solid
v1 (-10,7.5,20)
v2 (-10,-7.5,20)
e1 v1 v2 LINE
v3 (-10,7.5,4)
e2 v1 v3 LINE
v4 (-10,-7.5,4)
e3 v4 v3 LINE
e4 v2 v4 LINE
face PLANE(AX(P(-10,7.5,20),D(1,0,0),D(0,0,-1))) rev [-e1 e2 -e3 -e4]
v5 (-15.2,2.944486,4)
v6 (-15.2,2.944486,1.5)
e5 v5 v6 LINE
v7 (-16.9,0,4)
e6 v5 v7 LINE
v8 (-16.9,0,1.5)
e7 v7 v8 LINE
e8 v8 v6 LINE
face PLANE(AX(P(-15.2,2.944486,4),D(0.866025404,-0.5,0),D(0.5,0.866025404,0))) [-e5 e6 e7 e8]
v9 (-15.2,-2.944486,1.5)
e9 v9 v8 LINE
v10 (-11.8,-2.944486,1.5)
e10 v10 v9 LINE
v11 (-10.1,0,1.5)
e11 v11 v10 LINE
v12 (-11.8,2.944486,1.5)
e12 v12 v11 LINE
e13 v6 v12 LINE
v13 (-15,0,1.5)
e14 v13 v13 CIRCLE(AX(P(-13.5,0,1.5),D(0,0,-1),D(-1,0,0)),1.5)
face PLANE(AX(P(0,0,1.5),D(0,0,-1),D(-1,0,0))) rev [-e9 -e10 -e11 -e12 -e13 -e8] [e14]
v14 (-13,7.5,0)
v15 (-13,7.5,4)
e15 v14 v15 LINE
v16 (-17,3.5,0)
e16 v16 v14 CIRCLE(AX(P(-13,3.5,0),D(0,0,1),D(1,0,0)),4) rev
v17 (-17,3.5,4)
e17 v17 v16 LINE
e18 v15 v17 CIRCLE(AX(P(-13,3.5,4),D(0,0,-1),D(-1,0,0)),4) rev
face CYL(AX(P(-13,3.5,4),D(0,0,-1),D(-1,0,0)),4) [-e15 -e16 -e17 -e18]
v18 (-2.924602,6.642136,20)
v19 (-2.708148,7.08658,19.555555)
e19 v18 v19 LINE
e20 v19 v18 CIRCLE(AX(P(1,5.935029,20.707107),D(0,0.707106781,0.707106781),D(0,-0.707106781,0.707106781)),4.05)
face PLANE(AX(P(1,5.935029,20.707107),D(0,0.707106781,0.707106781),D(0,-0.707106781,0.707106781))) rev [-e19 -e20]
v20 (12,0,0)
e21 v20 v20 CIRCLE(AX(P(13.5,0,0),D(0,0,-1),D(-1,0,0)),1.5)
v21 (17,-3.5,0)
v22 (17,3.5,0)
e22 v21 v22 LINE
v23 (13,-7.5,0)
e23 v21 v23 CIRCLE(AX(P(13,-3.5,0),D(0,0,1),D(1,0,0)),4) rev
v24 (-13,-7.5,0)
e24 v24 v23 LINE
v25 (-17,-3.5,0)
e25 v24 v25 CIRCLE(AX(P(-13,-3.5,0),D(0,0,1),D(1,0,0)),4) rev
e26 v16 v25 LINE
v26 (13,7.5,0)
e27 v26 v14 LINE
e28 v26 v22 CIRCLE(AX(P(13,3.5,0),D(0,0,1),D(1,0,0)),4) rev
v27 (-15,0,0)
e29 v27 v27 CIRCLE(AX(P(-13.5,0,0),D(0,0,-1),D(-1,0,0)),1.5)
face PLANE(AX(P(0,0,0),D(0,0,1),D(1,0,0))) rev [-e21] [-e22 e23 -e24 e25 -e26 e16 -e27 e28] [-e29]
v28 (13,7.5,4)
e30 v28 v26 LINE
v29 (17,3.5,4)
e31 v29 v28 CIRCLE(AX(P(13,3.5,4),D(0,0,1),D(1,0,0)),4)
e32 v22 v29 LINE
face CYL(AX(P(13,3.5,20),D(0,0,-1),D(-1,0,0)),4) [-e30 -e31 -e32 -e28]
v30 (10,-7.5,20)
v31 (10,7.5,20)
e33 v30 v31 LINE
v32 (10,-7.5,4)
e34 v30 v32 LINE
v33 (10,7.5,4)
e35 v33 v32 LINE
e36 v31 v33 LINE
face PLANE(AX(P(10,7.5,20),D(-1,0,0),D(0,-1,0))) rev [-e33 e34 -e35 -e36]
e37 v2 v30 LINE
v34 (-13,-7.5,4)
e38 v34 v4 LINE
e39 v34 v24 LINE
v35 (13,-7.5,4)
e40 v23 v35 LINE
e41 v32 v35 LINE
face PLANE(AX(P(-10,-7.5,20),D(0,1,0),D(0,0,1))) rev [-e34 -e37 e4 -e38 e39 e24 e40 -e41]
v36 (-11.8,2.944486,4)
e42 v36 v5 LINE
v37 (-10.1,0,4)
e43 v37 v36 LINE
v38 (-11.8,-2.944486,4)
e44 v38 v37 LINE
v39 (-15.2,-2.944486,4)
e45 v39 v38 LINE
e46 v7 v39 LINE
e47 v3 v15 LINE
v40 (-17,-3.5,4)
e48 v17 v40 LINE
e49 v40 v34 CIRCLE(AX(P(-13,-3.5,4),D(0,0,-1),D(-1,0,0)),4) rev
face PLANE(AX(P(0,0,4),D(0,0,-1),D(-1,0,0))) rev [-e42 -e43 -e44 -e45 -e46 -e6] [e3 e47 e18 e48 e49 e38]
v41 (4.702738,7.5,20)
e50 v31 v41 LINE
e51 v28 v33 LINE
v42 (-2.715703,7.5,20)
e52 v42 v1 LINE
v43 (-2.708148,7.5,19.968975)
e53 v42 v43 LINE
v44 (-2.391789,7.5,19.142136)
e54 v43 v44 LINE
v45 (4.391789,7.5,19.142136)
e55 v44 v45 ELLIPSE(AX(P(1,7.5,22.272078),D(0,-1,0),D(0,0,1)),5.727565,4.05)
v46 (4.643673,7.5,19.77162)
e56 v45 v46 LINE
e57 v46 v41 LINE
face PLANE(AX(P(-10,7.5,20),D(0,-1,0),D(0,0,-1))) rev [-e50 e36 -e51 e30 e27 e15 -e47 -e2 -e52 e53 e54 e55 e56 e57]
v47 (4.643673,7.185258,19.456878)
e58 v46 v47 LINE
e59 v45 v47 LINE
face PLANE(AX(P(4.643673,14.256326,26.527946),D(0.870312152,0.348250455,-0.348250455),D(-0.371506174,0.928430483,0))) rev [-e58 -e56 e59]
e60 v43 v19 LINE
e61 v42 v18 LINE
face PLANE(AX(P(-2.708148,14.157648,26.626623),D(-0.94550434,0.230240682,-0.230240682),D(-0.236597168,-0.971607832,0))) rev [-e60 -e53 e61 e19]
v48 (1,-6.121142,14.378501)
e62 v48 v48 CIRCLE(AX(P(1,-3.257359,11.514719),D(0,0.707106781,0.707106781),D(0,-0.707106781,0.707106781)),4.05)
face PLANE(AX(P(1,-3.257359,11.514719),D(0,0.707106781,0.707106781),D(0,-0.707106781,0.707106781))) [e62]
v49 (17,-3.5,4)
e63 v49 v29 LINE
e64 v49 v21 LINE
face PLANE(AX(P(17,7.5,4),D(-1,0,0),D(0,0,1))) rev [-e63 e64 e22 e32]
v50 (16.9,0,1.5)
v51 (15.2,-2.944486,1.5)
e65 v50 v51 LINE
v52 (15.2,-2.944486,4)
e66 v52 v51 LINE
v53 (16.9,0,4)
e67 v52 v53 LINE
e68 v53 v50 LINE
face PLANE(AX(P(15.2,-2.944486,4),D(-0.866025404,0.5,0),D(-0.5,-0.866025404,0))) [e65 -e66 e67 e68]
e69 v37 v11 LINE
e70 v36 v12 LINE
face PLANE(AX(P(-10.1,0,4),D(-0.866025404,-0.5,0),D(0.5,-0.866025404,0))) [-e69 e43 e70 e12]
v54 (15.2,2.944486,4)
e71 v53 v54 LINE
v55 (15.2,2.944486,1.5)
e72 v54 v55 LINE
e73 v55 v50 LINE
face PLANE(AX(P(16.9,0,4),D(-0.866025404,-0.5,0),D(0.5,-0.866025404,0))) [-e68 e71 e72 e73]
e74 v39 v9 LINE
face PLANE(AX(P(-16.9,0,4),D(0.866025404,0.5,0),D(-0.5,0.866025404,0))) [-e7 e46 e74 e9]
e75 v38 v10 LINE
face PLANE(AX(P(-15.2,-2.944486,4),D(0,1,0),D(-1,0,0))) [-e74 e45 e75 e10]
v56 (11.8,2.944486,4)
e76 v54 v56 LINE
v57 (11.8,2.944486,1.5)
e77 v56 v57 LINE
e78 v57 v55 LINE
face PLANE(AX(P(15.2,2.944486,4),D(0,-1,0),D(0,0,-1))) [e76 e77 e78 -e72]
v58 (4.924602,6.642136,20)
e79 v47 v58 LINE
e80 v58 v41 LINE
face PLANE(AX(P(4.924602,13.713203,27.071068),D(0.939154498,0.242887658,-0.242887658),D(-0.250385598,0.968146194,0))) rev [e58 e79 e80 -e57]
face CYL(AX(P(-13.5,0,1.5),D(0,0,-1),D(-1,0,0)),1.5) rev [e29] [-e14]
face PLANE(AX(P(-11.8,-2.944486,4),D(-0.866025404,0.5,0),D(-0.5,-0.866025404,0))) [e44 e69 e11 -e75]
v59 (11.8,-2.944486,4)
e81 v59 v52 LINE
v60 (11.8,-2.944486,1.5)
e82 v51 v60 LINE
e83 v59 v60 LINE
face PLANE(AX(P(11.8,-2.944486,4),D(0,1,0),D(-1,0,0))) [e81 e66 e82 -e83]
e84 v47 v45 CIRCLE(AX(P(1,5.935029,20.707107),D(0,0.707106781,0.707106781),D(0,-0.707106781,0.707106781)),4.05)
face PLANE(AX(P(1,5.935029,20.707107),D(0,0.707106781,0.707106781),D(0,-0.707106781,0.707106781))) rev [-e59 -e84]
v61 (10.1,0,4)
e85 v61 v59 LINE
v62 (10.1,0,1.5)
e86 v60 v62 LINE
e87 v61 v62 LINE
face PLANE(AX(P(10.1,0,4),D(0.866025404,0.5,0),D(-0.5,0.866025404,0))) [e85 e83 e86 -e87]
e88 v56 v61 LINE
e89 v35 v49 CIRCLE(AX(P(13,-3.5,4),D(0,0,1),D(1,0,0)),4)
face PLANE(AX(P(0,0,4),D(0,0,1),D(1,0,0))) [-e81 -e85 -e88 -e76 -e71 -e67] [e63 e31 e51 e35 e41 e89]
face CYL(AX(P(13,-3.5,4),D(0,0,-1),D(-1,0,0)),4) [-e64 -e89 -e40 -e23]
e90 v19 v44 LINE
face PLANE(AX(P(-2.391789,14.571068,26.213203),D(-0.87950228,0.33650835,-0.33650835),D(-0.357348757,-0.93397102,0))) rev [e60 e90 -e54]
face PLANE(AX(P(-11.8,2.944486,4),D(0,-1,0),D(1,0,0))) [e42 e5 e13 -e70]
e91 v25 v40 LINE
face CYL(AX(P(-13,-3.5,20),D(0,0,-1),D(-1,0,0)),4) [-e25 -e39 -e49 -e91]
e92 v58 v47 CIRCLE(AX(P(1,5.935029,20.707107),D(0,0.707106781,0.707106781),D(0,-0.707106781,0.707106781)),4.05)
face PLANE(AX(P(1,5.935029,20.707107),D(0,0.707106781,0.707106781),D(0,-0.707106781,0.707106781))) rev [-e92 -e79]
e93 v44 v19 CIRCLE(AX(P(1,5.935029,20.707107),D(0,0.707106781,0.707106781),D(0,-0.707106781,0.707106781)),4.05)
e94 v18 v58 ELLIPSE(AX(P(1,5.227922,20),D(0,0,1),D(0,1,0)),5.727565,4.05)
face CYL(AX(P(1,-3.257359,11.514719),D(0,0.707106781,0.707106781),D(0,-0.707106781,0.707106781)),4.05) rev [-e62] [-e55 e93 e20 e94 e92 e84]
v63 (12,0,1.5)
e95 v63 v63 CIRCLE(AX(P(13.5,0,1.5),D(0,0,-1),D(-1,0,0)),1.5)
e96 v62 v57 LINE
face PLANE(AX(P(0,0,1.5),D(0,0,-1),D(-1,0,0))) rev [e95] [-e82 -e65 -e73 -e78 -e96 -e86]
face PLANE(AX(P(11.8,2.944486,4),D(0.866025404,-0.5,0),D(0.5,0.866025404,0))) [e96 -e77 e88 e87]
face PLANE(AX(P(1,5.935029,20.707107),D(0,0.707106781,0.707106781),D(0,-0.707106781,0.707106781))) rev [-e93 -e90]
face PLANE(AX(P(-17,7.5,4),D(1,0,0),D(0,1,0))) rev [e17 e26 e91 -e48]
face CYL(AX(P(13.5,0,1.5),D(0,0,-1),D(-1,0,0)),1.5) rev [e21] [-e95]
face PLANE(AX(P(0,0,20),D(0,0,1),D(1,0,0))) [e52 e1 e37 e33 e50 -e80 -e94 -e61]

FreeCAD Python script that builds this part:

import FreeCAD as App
import Part
import Sketcher
Q = App.Units.Quantity


def edges_at(feature, points):
    """Names of the edges that pass closest to the given points."""
    edges = feature.Shape.Edges
    near = lambda p: min(range(len(edges)), key=lambda i: edges[i].distToShape(Part.Vertex(*p))[0])
    return sorted({f"Edge{near(p) + 1}" for p in points})


def add_polygon(sketch, points):
    """Adds a closed chain of lines whose ends are joined by coincident constraints."""
    first, n = sketch.GeometryCount, len(points)
    for a, b in zip(points, points[1:] + points[:1]):
        sketch.addGeometry(Part.LineSegment(App.Vector(*a, 0), App.Vector(*b, 0)), False)
    for i in range(n):
        sketch.addConstraint(Sketcher.Constraint("Coincident", first + i, 2, first + (i + 1) % n, 1))

doc = App.newDocument("Part")
params = doc.addObject("Spreadsheet::Sheet", "Params")
for row, (alias, value) in enumerate([
    ("sketch1_width", "20 mm"),
    ("sketch1_height", "15 mm"),
    ("pad1_length", "20 mm"),
    ("sketch2_width", "7 mm"),
    ("sketch2_height", "15 mm"),
    ("sketch2_width2", "3.4 mm"),
    ("sketch2_length", "3.4 mm"),
    ("pad2_length", "4 mm"),
    ("sketch3_width", "3.4 mm"),
    ("sketch3_length", "3.4 mm"),
    ("pad3_length", "1.5 mm"),
    ("sketch4_diameter", "3 mm"),
    ("pocket1_length", "1.5 mm"),
    ("fillet_radius", "4 mm"),
    ("sketch5_diameter", "8.1 mm"),
    ("pocket2_length", "13 mm"),
    ("pocket3_length", "10 mm"),
], start=1):
    params.set(f"A{row}", alias)
    params.set(f"B{row}", "=" + value)
    params.setAlias(f"B{row}", alias)

body = doc.addObject("PartDesign::Body", "Body")

sketch1 = body.newObject("Sketcher::SketchObject", "Sketch")
sketch1.AttachmentSupport = (doc.getObject("XY_Plane"), [""])
sketch1.MapMode = "FlatFace"
add_polygon(sketch1, [(-10, 7.5), (-10, -7.5), (10, -7.5), (10, 7.5)])
sketch1.addConstraint([
    Sketcher.Constraint("Vertical", 0),
    Sketcher.Constraint("Horizontal", 1),
    Sketcher.Constraint("Vertical", 2),
    Sketcher.Constraint("Horizontal", 3),
    Sketcher.Constraint("Symmetric", 0, 2, 2, 2, -1, 1),
    Sketcher.Constraint("DistanceX", 1, 1, 1, 2, 20.0),
    Sketcher.Constraint("DistanceY", 0, 2, 0, 1, 15.0),
])
sketch1.setExpression("Constraints[9]", "Params.sketch1_width")
sketch1.setExpression("Constraints[10]", "Params.sketch1_height")
pad1 = body.newObject("PartDesign::Pad", "Pad")
pad1.Profile = sketch1
pad1.setExpression("Length", "Params.pad1_length")

sketch2 = body.newObject("Sketcher::SketchObject", "Sketch001")
sketch2.AttachmentSupport = (doc.getObject("XY_Plane"), [""])
sketch2.MapMode = "FlatFace"
add_polygon(sketch2, [(-17, 7.5), (-17, -7.5), (-10, -7.5), (-10, 7.5)])
add_polygon(sketch2, [(-11.8, 2.944486), (-10.1, 0), (-11.8, -2.944486), (-15.2, -2.944486), (-16.9, 0), (-15.2, 2.944486)])
add_polygon(sketch2, [(10, 7.5), (10, -7.5), (17, -7.5), (17, 7.5)])
add_polygon(sketch2, [(15.2, 2.944486), (16.9, 0), (15.2, -2.944486), (11.8, -2.944486), (10.1, 0), (11.8, 2.944486)])
sketch2.addConstraint([
    Sketcher.Constraint("Vertical", 0),
    Sketcher.Constraint("Horizontal", 1),
    Sketcher.Constraint("Vertical", 2),
    Sketcher.Constraint("Horizontal", 3),
    Sketcher.Constraint("Horizontal", 6),
    Sketcher.Constraint("Horizontal", 9),
    Sketcher.Constraint("Vertical", 10),
    Sketcher.Constraint("Horizontal", 11),
    Sketcher.Constraint("Vertical", 12),
    Sketcher.Constraint("Horizontal", 13),
    Sketcher.Constraint("Horizontal", 16),
    Sketcher.Constraint("Horizontal", 19),
    Sketcher.Constraint("Symmetric", 2, 2, 10, 2, -1, 1),
    Sketcher.Constraint("Symmetric", 0, 2, 12, 2, -1, 1),
    Sketcher.Constraint("Symmetric", 7, 2, 14, 2, -1, 1),
    Sketcher.Constraint("Symmetric", 8, 2, 15, 2, -1, 1),
    Sketcher.Constraint("Symmetric", 4, 2, 17, 2, -1, 1),
    Sketcher.Constraint("Symmetric", 5, 2, 18, 2, -1, 1),
    Sketcher.Constraint("Symmetric", 6, 2, 15, 2, -2),
    Sketcher.Constraint("PointOnObject", 4, 2, -1),
    Sketcher.Constraint("PointOnObject", 7, 2, -1),
    Sketcher.Constraint("Parallel", 4, 7),
    Sketcher.Constraint("Parallel", 5, 8),
    Sketcher.Constraint("Parallel", 7, 14),
    Sketcher.Constraint("Parallel", 14, 17),
    Sketcher.Constraint("Horizontal", 1, 2, 10, 2),
    Sketcher.Constraint("DistanceX", 1, 1, 1, 2, 7.0),
    Sketcher.Constraint("DistanceY", 0, 2, 0, 1, 15.0),
    Sketcher.Constraint("Angle", 4, Q("-60 deg")),
    Sketcher.Constraint("DistanceX", 6, 2, 6, 1, 3.4),
    Sketcher.Constraint("DistanceX", 0, 2, -1, 1, 17.0),
    Sketcher.Constraint("DistanceX", 4, 2, 14, 2, 27.0),
    Sketcher.Constraint("Distance", 4, 3.4),
])
sketch2.setExpression("Constraints[46]", "Params.sketch2_width")
sketch2.setExpression("Constraints[47]", "Params.sketch2_height")
sketch2.setExpression("Constraints[49]", "Params.sketch2_width2")
sketch2.setExpression("Constraints[52]", "Params.sketch2_length")
pad2 = body.newObject("PartDesign::Pad", "Pad001")
pad2.Profile = sketch2
pad2.setExpression("Length", "Params.pad2_length")

sketch3 = body.newObject("Sketcher::SketchObject", "Sketch002")
sketch3.AttachmentSupport = (doc.getObject("XY_Plane"), [""])
sketch3.MapMode = "FlatFace"
add_polygon(sketch3, [(10.1, 0), (11.8, 2.944486), (15.2, 2.944486), (16.9, 0), (15.2, -2.944486), (11.8, -2.944486)])
add_polygon(sketch3, [(-16.9, 0), (-15.2, 2.944486), (-11.8, 2.944486), (-10.1, 0), (-11.8, -2.944486), (-15.2, -2.944486)])
sketch3.addConstraint([
    Sketcher.Constraint("Horizontal", 1),
    Sketcher.Constraint("Horizontal", 4),
    Sketcher.Constraint("Horizontal", 7),
    Sketcher.Constraint("Horizontal", 10),
    Sketcher.Constraint("Symmetric", 3, 2, 6, 2, -1, 1),
    Sketcher.Constraint("Symmetric", 5, 2, 8, 2, -1, 1),
    Sketcher.Constraint("Symmetric", 0, 2, 9, 2, -1, 1),
    Sketcher.Constraint("Symmetric", 2, 2, 11, 2, -1, 1),
    Sketcher.Constraint("Symmetric", 1, 2, 6, 2, -2),
    Sketcher.Constraint("PointOnObject", 2, 2, -1),
    Sketcher.Constraint("PointOnObject", 5, 2, -1),
    Sketcher.Constraint("Parallel", 0, 3),
    Sketcher.Constraint("Parallel", 2, 5),
    Sketcher.Constraint("Parallel", 5, 8),
    Sketcher.Constraint("Parallel", 8, 11),
    Sketcher.Constraint("Angle", 0, Q("60 deg")),
    Sketcher.Constraint("DistanceX", 1, 1, 1, 2, 3.4),
    Sketcher.Constraint("DistanceX", 6, 2, 0, 2, 27.0),
    Sketcher.Constraint("Distance", 0, 3.4),
])
sketch3.setExpression("Constraints[28]", "Params.sketch3_width")
sketch3.setExpression("Constraints[30]", "Params.sketch3_length")
pad3 = body.newObject("PartDesign::Pad", "Pad002")
pad3.Profile = sketch3
pad3.setExpression("Length", "Params.pad3_length")

sketch4 = body.newObject("Sketcher::SketchObject", "Sketch003")
sketch4.AttachmentSupport = (doc.getObject("XY_Plane"), [""])
sketch4.MapMode = "FlatFace"
sketch4.addGeometry([
    Part.Circle(App.Vector(13.5, 0, 0), App.Vector(0, 0, 1), 1.5),
    Part.Circle(App.Vector(-13.5, 0, 0), App.Vector(0, 0, 1), 1.5),
], False)
sketch4.addConstraint([
    Sketcher.Constraint("Equal", 0, 1),
    Sketcher.Constraint("Symmetric", 0, 3, 1, 3, -1, 1),
    Sketcher.Constraint("PointOnObject", 0, 3, -1),
    Sketcher.Constraint("Diameter", 0, 3.0),
    Sketcher.Constraint("DistanceX", 1, 3, 0, 3, 27.0),
])
sketch4.setExpression("Constraints[3]", "Params.sketch4_diameter")
pocket1 = body.newObject("PartDesign::Pocket", "Pocket")
pocket1.Profile = sketch4
pocket1.setExpression("Length", "Params.pocket1_length")
pocket1.Reversed = True
doc.recompute()

fillet = body.newObject("PartDesign::Fillet", "Fillet")
fillet.Base = (pocket1, edges_at(pocket1, [
    (-17, 7.5, 2),
    (-17, -7.5, 2),
    (17, -7.5, 2),
    (17, 7.5, 2),
]))
fillet.setExpression("Radius", "Params.fillet_radius")

sketch5 = body.newObject("Sketcher::SketchObject", "Sketch004")
sketch5.Placement = App.Placement(App.Vector(0, 13.321068, 13.321068), App.Rotation(App.Vector(1, 0, 0), App.Vector(0, 0.707106781, -0.707106781), App.Vector(0, 0.707106781, 0.707106781), "ZXY"))
sketch5.addGeometry(Part.Circle(App.Vector(1, -10.445436, 0), App.Vector(0, 0, 1), 4.05), False)
sketch5.addConstraint([
    Sketcher.Constraint("Diameter", 0, 8.1),
    Sketcher.Constraint("DistanceX", -1, 1, 0, 3, 1.0),
    Sketcher.Constraint("DistanceY", 0, 3, -1, 1, 10.445436),
])
sketch5.setExpression("Constraints[0]", "Params.sketch5_diameter")
pocket2 = body.newObject("PartDesign::Pocket", "Pocket001")
pocket2.Profile = sketch5
pocket2.setExpression("Length", "Params.pocket2_length")

sketch6 = body.newObject("Sketcher::SketchObject", "Sketch005")
sketch6.Placement = App.Placement(App.Vector(0, 13.321068, 13.321068), App.Rotation(App.Vector(1, 0, 0), App.Vector(0, -0.707106781, 0.707106781), App.Vector(0, -0.707106781, -0.707106781), "ZXY"))
add_polygon(sketch6, [(-2.391789, 8.232233), (4.391789, 8.232233), (4.643673, 8.677346), (4.924602, 9.445436), (-2.924602, 9.445436), (-2.708148, 8.816897)])
sketch6.addConstraint([
    Sketcher.Constraint("Horizontal", 0),
    Sketcher.Constraint("Horizontal", 3),
    Sketcher.Constraint("Equal", 4, 5),
    Sketcher.Constraint("DistanceX", -1, 1, 2, 2, 4.924602),
    Sketcher.Constraint("DistanceX", 3, 2, -1, 1, 2.924602),
    Sketcher.Constraint("Distance", 1, 0.51144),
    Sketcher.Constraint("DistanceX", 0, 1, 0, 2, 6.783577),
    Sketcher.Constraint("DistanceX", -1, 1, 0, 2, 4.391789),
    Sketcher.Constraint("DistanceX", 1, 2, 2, 2, 0.280929),
    Sketcher.Constraint("DistanceY", 1, 2, 2, 2, 0.768091),
    Sketcher.Constraint("DistanceY", 4, 2, 3, 2, 0.62854),
    Sketcher.Constraint("DistanceY", -1, 1, 0, 2, 8.232233),
])
pocket3 = body.newObject("PartDesign::Pocket", "Pocket002")
pocket3.Profile = sketch6
pocket3.setExpression("Length", "Params.pocket3_length")

doc.recompute()
